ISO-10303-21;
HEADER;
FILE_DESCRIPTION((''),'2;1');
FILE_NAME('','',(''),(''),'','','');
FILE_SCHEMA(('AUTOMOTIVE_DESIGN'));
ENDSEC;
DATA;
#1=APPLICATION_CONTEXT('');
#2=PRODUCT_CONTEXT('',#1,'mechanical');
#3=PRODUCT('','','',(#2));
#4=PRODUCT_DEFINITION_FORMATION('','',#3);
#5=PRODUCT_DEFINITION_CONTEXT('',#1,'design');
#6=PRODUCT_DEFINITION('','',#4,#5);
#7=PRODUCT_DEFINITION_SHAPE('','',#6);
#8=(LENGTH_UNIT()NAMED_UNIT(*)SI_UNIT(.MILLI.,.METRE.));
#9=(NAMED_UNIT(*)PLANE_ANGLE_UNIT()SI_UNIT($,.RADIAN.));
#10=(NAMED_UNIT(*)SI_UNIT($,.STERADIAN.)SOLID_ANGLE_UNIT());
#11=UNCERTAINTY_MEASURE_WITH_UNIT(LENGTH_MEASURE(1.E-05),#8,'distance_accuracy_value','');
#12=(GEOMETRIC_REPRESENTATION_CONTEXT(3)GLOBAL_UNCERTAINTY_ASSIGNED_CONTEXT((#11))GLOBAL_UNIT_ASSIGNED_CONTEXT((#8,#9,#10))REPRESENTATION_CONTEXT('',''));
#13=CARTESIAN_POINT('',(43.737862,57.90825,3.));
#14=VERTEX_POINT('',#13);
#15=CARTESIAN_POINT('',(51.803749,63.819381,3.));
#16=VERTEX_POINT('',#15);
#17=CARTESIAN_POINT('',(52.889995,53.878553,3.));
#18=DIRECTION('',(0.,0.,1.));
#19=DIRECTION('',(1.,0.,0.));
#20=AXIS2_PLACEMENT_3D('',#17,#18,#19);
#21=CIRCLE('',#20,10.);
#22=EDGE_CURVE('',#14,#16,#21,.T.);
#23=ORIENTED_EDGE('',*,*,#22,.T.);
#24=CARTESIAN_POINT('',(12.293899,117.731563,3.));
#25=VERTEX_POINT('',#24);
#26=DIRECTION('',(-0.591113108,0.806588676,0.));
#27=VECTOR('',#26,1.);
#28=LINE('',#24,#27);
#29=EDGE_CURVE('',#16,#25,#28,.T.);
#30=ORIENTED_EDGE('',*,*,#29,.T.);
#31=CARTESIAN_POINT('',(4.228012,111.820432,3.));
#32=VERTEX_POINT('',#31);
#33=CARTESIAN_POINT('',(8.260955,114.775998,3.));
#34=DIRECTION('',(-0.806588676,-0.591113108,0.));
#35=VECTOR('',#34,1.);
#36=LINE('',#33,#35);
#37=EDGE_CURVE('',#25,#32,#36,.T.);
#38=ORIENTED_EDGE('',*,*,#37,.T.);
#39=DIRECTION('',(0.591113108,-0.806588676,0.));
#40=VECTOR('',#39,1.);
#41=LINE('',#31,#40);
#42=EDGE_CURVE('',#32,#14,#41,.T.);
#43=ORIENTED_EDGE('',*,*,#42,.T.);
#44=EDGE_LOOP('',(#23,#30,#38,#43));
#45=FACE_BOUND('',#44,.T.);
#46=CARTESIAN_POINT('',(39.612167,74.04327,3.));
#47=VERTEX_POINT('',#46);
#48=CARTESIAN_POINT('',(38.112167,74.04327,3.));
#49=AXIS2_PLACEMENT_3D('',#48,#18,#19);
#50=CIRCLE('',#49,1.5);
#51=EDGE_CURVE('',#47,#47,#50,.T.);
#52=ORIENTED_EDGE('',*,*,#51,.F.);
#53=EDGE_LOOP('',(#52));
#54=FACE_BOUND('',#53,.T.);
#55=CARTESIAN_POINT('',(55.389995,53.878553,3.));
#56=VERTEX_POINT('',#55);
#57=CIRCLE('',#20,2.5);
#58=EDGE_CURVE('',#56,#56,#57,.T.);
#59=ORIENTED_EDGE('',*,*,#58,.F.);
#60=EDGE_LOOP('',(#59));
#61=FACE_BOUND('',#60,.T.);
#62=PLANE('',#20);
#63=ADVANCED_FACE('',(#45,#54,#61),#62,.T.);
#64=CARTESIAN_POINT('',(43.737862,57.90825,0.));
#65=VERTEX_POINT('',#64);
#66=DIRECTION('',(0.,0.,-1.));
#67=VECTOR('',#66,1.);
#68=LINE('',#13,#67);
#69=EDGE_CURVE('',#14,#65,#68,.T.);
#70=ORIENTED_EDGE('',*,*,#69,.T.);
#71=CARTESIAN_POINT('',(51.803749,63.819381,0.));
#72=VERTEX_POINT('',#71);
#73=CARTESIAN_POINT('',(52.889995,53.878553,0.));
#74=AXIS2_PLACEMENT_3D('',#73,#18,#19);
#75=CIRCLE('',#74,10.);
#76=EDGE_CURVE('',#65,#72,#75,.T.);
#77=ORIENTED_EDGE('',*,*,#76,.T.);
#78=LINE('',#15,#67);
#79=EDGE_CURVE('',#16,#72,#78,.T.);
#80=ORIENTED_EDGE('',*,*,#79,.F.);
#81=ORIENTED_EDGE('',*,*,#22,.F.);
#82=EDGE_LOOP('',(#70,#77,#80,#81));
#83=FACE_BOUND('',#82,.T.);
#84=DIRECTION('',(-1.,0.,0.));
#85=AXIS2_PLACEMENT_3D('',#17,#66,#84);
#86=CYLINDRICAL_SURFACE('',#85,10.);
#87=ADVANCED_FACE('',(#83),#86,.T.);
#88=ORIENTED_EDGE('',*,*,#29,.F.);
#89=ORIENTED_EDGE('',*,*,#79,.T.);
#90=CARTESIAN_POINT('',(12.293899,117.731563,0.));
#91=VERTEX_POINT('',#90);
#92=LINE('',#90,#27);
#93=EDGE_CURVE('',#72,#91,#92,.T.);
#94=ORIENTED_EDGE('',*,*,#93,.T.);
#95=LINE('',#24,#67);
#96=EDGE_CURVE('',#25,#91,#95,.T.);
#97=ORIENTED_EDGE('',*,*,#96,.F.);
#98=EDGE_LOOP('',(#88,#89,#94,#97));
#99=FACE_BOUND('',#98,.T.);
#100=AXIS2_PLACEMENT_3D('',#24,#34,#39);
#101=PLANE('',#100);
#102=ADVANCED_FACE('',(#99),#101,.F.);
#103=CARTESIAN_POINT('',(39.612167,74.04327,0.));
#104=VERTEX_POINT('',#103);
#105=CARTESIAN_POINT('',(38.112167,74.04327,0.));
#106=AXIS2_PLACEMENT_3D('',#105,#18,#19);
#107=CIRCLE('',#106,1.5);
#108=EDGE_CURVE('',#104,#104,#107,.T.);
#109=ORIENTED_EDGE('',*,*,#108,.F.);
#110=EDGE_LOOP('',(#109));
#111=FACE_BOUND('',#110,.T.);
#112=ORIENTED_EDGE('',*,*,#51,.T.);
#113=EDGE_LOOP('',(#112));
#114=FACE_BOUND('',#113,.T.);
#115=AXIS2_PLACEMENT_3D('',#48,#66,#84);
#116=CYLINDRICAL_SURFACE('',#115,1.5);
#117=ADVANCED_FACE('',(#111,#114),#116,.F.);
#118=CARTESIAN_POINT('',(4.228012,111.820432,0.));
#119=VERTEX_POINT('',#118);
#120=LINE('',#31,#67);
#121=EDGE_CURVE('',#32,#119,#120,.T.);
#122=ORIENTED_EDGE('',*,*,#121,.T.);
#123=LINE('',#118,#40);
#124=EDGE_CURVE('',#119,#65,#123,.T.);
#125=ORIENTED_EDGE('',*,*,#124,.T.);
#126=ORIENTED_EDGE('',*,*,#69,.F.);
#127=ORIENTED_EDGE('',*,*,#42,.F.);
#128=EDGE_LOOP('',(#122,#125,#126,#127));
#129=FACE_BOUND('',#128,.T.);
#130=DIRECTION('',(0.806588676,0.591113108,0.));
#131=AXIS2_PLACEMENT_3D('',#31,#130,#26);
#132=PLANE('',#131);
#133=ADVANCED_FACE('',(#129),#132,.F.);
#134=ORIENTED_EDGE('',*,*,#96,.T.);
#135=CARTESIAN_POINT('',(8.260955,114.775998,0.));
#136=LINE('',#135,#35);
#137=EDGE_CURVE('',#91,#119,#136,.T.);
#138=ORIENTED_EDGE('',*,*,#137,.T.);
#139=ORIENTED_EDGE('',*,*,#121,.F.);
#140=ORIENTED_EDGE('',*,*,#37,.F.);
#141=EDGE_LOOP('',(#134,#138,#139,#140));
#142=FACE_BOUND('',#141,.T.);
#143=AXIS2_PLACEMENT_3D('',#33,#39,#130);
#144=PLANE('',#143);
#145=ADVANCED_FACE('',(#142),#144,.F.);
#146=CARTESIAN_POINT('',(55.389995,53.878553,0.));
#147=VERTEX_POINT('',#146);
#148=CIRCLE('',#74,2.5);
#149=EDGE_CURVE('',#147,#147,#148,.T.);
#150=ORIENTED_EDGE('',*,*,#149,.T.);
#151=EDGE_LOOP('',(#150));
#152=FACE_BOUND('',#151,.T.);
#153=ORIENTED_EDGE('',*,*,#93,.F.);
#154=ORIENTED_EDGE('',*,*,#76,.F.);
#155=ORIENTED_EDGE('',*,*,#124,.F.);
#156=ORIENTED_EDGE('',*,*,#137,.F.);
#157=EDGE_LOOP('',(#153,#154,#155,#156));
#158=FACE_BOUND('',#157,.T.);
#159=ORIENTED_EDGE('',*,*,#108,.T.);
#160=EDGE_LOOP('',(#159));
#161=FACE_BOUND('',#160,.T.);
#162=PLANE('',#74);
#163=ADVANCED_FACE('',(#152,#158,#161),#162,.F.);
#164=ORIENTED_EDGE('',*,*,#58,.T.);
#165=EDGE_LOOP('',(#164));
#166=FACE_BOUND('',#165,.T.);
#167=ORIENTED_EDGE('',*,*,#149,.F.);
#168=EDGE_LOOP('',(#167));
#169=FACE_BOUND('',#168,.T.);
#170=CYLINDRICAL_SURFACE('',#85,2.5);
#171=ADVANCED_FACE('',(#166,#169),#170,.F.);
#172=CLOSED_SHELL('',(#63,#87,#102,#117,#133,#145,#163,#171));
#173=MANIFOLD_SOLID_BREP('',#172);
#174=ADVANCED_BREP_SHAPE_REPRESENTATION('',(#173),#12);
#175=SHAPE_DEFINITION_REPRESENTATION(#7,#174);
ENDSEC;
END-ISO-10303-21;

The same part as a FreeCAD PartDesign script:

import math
import FreeCAD as App
import Part
import Sketcher
from FreeCAD import Vector
Q = App.Units.Quantity

doc = App.newDocument("Part")
body = doc.addObject("PartDesign::Body", "Body")

# Sketch on XY plane
sketch1 = body.newObject("Sketcher::SketchObject", "Sketch")
sketch1.AttachmentSupport = (doc.getObject("XY_Plane"), [""])
sketch1.MapMode = "FlatFace"
sketch1.addGeometry(Part.LineSegment(Vector(4.2, 111.8, 0), Vector(43.7, 57.9, 0)), False)
sketch1.addGeometry(Part.ArcOfCircle(Part.Circle(Vector(52.9, 53.9, 0), Vector(0, 0, 1), 10), math.radians(156), math.radians(456)), False)
sketch1.addGeometry(Part.LineSegment(Vector(51.8, 63.8, 0), Vector(12.3, 117.7, 0)), False)
sketch1.addGeometry(Part.LineSegment(Vector(12.3, 117.7, 0), Vector(4.2, 111.8, 0)), False)
sketch1.addGeometry(Part.Circle(Vector(52.9, 53.9, 0), Vector(0, 0, 1), 2.5), False)
sketch1.addGeometry(Part.Circle(Vector(38.1, 74, 0), Vector(0, 0, 1), 1.5), False)
sketch1.addConstraint(Sketcher.Constraint("Coincident", 0, 2, 1, 1))
sketch1.addConstraint(Sketcher.Constraint("Coincident", 1, 2, 2, 1))
sketch1.addConstraint(Sketcher.Constraint("Coincident", 2, 2, 3, 1))
sketch1.addConstraint(Sketcher.Constraint("Coincident", 3, 2, 0, 1))
sketch1.addConstraint(Sketcher.Constraint("Coincident", 4, 3, 1, 3))
sketch1.addConstraint(Sketcher.Constraint("Parallel", 0, 2))
sketch1.addConstraint(Sketcher.Constraint("Perpendicular", 2, 3))
sketch1.addConstraint(Sketcher.Constraint("Equal", 0, 2))
sketch1.addConstraint(Sketcher.Constraint("Diameter", 4, Q("5 mm")))
sketch1.addConstraint(Sketcher.Constraint("Diameter", 5, Q("3 mm")))
sketch1.addConstraint(Sketcher.Constraint("Radius", 1, Q("10 mm")))
sketch1.addConstraint(Sketcher.Constraint("Distance", 3, Q("10 mm")))
sketch1.addConstraint(Sketcher.Constraint("DistanceX", -1, 1, 2, 2, Q("12.293899 mm")))
sketch1.addConstraint(Sketcher.Constraint("DistanceY", -1, 1, 5, 3, Q("74.04327 mm")))
sketch1.addConstraint(Sketcher.Constraint("DistanceX", -1, 1, 0, 2, Q("43.737862 mm")))
sketch1.addConstraint(Sketcher.Constraint("DistanceY", -1, 1, 0, 2, Q("57.90825 mm")))
sketch1.addConstraint(Sketcher.Constraint("DistanceX", -1, 1, 1, 2, Q("51.803749 mm")))
sketch1.addConstraint(Sketcher.Constraint("DistanceX", 5, 3, 1, 2, Q("13.691581 mm")))
pad1 = body.newObject("PartDesign::Pad", "Pad")
pad1.Profile = sketch1
pad1.Length = 3

doc.recompute()
